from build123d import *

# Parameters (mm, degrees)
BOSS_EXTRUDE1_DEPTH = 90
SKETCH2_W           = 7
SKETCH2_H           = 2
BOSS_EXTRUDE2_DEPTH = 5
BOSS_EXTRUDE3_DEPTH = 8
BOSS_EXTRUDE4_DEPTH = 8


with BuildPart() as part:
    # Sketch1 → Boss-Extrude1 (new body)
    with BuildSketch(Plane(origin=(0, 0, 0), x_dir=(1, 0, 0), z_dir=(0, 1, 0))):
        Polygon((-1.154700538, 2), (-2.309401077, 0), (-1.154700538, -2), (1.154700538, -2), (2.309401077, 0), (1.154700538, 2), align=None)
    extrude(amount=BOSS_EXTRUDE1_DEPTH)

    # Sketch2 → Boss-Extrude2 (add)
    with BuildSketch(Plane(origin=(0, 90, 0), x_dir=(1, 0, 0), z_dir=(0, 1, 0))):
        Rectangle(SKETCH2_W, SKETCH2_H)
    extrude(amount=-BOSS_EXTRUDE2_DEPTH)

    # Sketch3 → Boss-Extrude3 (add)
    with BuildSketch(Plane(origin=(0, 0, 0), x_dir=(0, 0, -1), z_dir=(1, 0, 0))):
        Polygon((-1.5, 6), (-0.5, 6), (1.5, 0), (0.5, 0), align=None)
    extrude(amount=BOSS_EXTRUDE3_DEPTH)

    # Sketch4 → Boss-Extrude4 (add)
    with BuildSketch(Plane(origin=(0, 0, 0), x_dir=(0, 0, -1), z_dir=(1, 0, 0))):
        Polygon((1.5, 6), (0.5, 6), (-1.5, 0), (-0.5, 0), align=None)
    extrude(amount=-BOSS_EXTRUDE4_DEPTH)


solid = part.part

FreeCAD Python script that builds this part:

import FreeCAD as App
import Part
import Sketcher

V = App.Vector
Q = App.Units.Quantity

doc = App.newDocument("Part")
body = doc.addObject("PartDesign::Body", "Body")

# Sketch on XZ plane
sketch1 = body.newObject("Sketcher::SketchObject", "Sketch")
sketch1.AttachmentSupport = (doc.getObject("XZ_Plane"), [""])
sketch1.MapMode = "FlatFace"
sketch1.addGeometry([
    Part.LineSegment(V(-1.2, -2, 0), V(-2.3, 0, 0)),  # 0
    Part.LineSegment(V(-2.3, 0, 0), V(-1.2, 2, 0)),  # 1
    Part.LineSegment(V(-1.2, 2, 0), V(1.2, 2, 0)),  # 2
    Part.LineSegment(V(1.2, 2, 0), V(2.3, 0, 0)),  # 3
    Part.LineSegment(V(2.3, 0, 0), V(1.2, -2, 0)),  # 4
    Part.LineSegment(V(1.2, -2, 0), V(-1.2, -2, 0)),  # 5
], False)
sketch1.addConstraint([
    Sketcher.Constraint("Coincident", 0, 2, 1, 1),
    Sketcher.Constraint("Coincident", 1, 2, 2, 1),
    Sketcher.Constraint("Coincident", 2, 2, 3, 1),
    Sketcher.Constraint("Coincident", 3, 2, 4, 1),
    Sketcher.Constraint("Coincident", 4, 2, 5, 1),
    Sketcher.Constraint("Coincident", 5, 2, 0, 1),
    Sketcher.Constraint("Horizontal", 2),
    Sketcher.Constraint("Horizontal", 5),
    Sketcher.Constraint("Symmetric", 0, 2, 3, 2, -1, 1),
    Sketcher.Constraint("Symmetric", 1, 2, 4, 2, -1, 1),
    Sketcher.Constraint("PointOnObject", 0, 2, -1),
    Sketcher.Constraint("Parallel", 0, 3),
    Sketcher.Constraint("Vertical", 2, 2, 4, 2),
    Sketcher.Constraint("Angle", 0, Q("120 deg")),
    Sketcher.Constraint("DistanceY", -1, 1, 1, 2, Q("2 mm")),
    Sketcher.Constraint("DistanceX", 2, 1, 2, 2, Q("2.309401 mm")),
])
pad1 = body.newObject("PartDesign::Pad", "Pad")
pad1.Profile = sketch1
pad1.Length = 90
pad1.Reversed = True

# Sketch on XZ plane
sketch2 = body.newObject("Sketcher::SketchObject", "Sketch001")
sketch2.AttachmentSupport = (doc.getObject("XZ_Plane"), [""])
sketch2.MapMode = "FlatFace"
sketch2.AttachmentOffset = App.Placement(V(0, 0, -90), App.Rotation())
sketch2.addGeometry([
    Part.LineSegment(V(-3.5, -1, 0), V(-3.5, 1, 0)),
    Part.LineSegment(V(-3.5, 1, 0), V(3.5, 1, 0)),
    Part.LineSegment(V(3.5, 1, 0), V(3.5, -1, 0)),
    Part.LineSegment(V(3.5, -1, 0), V(-3.5, -1, 0)),
], False)
sketch2.addConstraint([
    Sketcher.Constraint("Coincident", 0, 2, 1, 1),
    Sketcher.Constraint("Coincident", 1, 2, 2, 1),
    Sketcher.Constraint("Coincident", 2, 2, 3, 1),
    Sketcher.Constraint("Coincident", 3, 2, 0, 1),
    Sketcher.Constraint("Vertical", 0),
    Sketcher.Constraint("Horizontal", 1),
    Sketcher.Constraint("Vertical", 2),
    Sketcher.Constraint("Horizontal", 3),
    Sketcher.Constraint("Symmetric", 0, 2, 2, 2, -1, 1),
    Sketcher.Constraint("DistanceX", 1, 1, 1, 2, Q("7 mm")),
    Sketcher.Constraint("DistanceY", 0, 1, 0, 2, Q("2 mm")),
])
pad2 = body.newObject("PartDesign::Pad", "Pad001")
pad2.Profile = sketch2
pad2.Length = 5

# Sketch on YZ plane
sketch3 = body.newObject("Sketcher::SketchObject", "Sketch002")
sketch3.AttachmentSupport = (doc.getObject("YZ_Plane"), [""])
sketch3.MapMode = "FlatFace"
sketch3.addGeometry([
    Part.LineSegment(V(6, 0.5, 0), V(6, 1.5, 0)),
    Part.LineSegment(V(6, 1.5, 0), V(0, -0.5, 0)),
    Part.LineSegment(V(0, -0.5, 0), V(0, -1.5, 0)),
    Part.LineSegment(V(0, -1.5, 0), V(6, 0.5, 0)),
], False)
sketch3.addConstraint([
    Sketcher.Constraint("Coincident", 0, 2, 1, 1),
    Sketcher.Constraint("Coincident", 1, 2, 2, 1),
    Sketcher.Constraint("Coincident", 2, 2, 3, 1),
    Sketcher.Constraint("Coincident", 3, 2, 0, 1),
    Sketcher.Constraint("Vertical", 0),
    Sketcher.Constraint("Vertical", 2),
    Sketcher.Constraint("PointOnObject", 1, 2, -2),
    Sketcher.Constraint("Parallel", 1, 3),
    Sketcher.Constraint("DistanceY", 0, 1, 0, 2, Q("1 mm")),
    Sketcher.Constraint("DistanceX", -1, 1, 0, 2, Q("6 mm")),
    Sketcher.Constraint("DistanceY", 1, 2, 0, 2, Q("2 mm")),
    Sketcher.Constraint("DistanceY", -1, 1, 0, 2, Q("1.5 mm")),
])
pad3 = body.newObject("PartDesign::Pad", "Pad002")
pad3.Profile = sketch3
pad3.Length = 8

# Sketch on YZ plane
sketch4 = body.newObject("Sketcher::SketchObject", "Sketch003")
sketch4.AttachmentSupport = (doc.getObject("YZ_Plane"), [""])
sketch4.MapMode = "FlatFace"
sketch4.addGeometry([
    Part.LineSegment(V(6, -1.5, 0), V(6, -0.5, 0)),
    Part.LineSegment(V(6, -0.5, 0), V(0, 1.5, 0)),
    Part.LineSegment(V(0, 1.5, 0), V(0, 0.5, 0)),
    Part.LineSegment(V(0, 0.5, 0), V(6, -1.5, 0)),
], False)
sketch4.addConstraint([
    Sketcher.Constraint("Coincident", 0, 2, 1, 1),
    Sketcher.Constraint("Coincident", 1, 2, 2, 1),
    Sketcher.Constraint("Coincident", 2, 2, 3, 1),
    Sketcher.Constraint("Coincident", 3, 2, 0, 1),
    Sketcher.Constraint("Vertical", 0),
    Sketcher.Constraint("Vertical", 2),
    Sketcher.Constraint("PointOnObject", 1, 2, -2),
    Sketcher.Constraint("Parallel", 1, 3),
    Sketcher.Constraint("DistanceY", 0, 1, 0, 2, Q("1 mm")),
    Sketcher.Constraint("DistanceX", -1, 1, 0, 2, Q("6 mm")),
    Sketcher.Constraint("DistanceY", 0, 2, 1, 2, Q("2 mm")),
    Sketcher.Constraint("DistanceY", 0, 2, -1, 1, Q("0.5 mm")),
])
pad4 = body.newObject("PartDesign::Pad", "Pad003")
pad4.Profile = sketch4
pad4.Length = 8
pad4.Reversed = True

doc.recompute()
